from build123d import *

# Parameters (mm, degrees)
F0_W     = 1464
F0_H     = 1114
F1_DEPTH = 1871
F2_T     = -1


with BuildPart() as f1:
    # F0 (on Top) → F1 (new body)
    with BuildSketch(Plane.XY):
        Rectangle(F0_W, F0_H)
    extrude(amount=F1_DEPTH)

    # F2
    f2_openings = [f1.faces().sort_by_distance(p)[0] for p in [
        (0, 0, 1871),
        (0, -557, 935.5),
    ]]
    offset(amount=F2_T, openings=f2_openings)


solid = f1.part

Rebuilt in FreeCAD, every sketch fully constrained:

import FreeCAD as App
import Part
import Sketcher

V = App.Vector


def faces_at(feature, points):
    """Names of the faces that lie closest to the given points."""
    faces = feature.Shape.Faces
    near = lambda p: min(range(len(faces)), key=lambda i: faces[i].distToShape(Part.Vertex(*p))[0])
    return sorted({f"Face{near(p) + 1}" for p in points})


def add_polygon(sketch, points):
    """Adds a closed chain of lines whose ends are joined by coincident constraints."""
    first, n = sketch.GeometryCount, len(points)
    for a, b in zip(points, points[1:] + points[:1]):
        sketch.addGeometry(Part.LineSegment(App.Vector(*a, 0), App.Vector(*b, 0)), False)
    for i in range(n):
        sketch.addConstraint(Sketcher.Constraint("Coincident", first + i, 2, first + (i + 1) % n, 1))

doc = App.newDocument("Part")
body = doc.addObject("PartDesign::Body", "Body")

sketch1 = body.newObject("Sketcher::SketchObject", "Sketch")
sketch1.AttachmentSupport = (doc.getObject("XY_Plane"), [""])
sketch1.MapMode = "FlatFace"
add_polygon(sketch1, [(-732, 557), (-732, -557), (732, -557), (732, 557)])
sketch1.addConstraint(Sketcher.Constraint("Vertical", 0))
sketch1.addConstraint(Sketcher.Constraint("Horizontal", 1))
sketch1.addConstraint(Sketcher.Constraint("Vertical", 2))
sketch1.addConstraint(Sketcher.Constraint("Horizontal", 3))
sketch1.addConstraint(Sketcher.Constraint("Symmetric", 0, 2, 2, 2, -1, 1))
sketch1.addConstraint(Sketcher.Constraint("DistanceX", 1, 1, 1, 2, 1464.0))
sketch1.addConstraint(Sketcher.Constraint("DistanceY", 0, 2, 0, 1, 1114.0))
pad1 = body.newObject("PartDesign::Pad", "Pad")
pad1.Profile = sketch1
pad1.Length = 1871
doc.recompute()

thickness = body.newObject("PartDesign::Thickness", "Thickness")
thickness.Base = (pad1, faces_at(pad1, [(0, 0, 1871), (0, -557, 935.5)]))
thickness.Value = 1
thickness.Reversed = True
thickness.Join = "Arc"

doc.recompute()
